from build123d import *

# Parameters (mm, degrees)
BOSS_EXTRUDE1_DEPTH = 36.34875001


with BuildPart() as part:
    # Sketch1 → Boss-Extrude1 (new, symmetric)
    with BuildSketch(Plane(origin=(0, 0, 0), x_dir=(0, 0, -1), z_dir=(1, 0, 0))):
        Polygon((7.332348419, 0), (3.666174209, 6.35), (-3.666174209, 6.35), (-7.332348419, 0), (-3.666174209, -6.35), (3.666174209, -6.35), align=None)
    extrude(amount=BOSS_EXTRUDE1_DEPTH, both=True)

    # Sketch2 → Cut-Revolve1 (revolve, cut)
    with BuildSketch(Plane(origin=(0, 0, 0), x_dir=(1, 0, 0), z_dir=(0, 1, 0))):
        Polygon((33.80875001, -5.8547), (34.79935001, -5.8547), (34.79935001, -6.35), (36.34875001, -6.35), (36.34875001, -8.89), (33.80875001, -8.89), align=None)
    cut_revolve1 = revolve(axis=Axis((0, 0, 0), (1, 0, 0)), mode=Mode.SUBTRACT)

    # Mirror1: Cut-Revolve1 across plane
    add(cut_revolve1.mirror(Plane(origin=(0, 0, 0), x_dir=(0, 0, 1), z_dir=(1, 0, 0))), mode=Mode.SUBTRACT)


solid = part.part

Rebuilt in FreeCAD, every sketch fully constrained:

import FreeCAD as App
import Part
import Sketcher

V = App.Vector
Q = App.Units.Quantity

doc = App.newDocument("Part")
params = doc.addObject("Spreadsheet::Sheet", "Params")
for row, (alias, value) in enumerate([
    ("pad1_length", "72.6975 mm"),
    ("sketch2_width", "0.1 in"),
    ("sketch2_width2", "0.039 in"),
    ("groove_angle", "360 deg"),
], start=1):
    params.set(f"A{row}", alias)
    params.set(f"B{row}", "=" + value)
    params.setAlias(f"B{row}", alias)

body = doc.addObject("PartDesign::Body", "Body")

# Sketch on YZ plane
sketch1 = body.newObject("Sketcher::SketchObject", "Sketch")
sketch1.AttachmentSupport = (doc.getObject("YZ_Plane"), [""])
sketch1.MapMode = "FlatFace"
sketch1.addGeometry(Part.LineSegment(V(0, -7, 0), V(6, -4, 0)), False)
sketch1.addGeometry(Part.LineSegment(V(6, -4, 0), V(6, 4, 0)), False)
sketch1.addGeometry(Part.LineSegment(V(6, 4, 0), V(0, 7, 0)), False)
sketch1.addGeometry(Part.LineSegment(V(0, 7, 0), V(-6, 4, 0)), False)
sketch1.addGeometry(Part.LineSegment(V(-6, 4, 0), V(-6, -4, 0)), False)
sketch1.addGeometry(Part.LineSegment(V(-6, -4, 0), V(0, -7, 0)), False)
sketch1.addConstraint(Sketcher.Constraint("Coincident", 0, 2, 1, 1))
sketch1.addConstraint(Sketcher.Constraint("Coincident", 1, 2, 2, 1))
sketch1.addConstraint(Sketcher.Constraint("Coincident", 2, 2, 3, 1))
sketch1.addConstraint(Sketcher.Constraint("Coincident", 3, 2, 4, 1))
sketch1.addConstraint(Sketcher.Constraint("Coincident", 4, 2, 5, 1))
sketch1.addConstraint(Sketcher.Constraint("Coincident", 5, 2, 0, 1))
sketch1.addConstraint(Sketcher.Constraint("Vertical", 1))
sketch1.addConstraint(Sketcher.Constraint("Vertical", 4))
sketch1.addConstraint(Sketcher.Constraint("Symmetric", 0, 2, 3, 2, -1, 1))
sketch1.addConstraint(Sketcher.Constraint("Symmetric", 2, 2, 5, 2, -1, 1))
sketch1.addConstraint(Sketcher.Constraint("PointOnObject", 2, 2, -2))
sketch1.addConstraint(Sketcher.Constraint("Parallel", 2, 5))
sketch1.addConstraint(Sketcher.Constraint("Horizontal", 1, 2, 3, 2))
sketch1.addConstraint(Sketcher.Constraint("Angle", 0, Q("30 deg")))
sketch1.addConstraint(Sketcher.Constraint("DistanceX", 3, 2, 1, 2, Q("0.5 in")))
sketch1.addConstraint(Sketcher.Constraint("DistanceY", 1, 1, 1, 2, 7.332348))
pad1 = body.newObject("PartDesign::Pad", "Pad")
pad1.Profile = sketch1
pad1.setExpression("Length", "Params.pad1_length")
pad1.Midplane = True

# Sketch on XZ plane
sketch2 = body.newObject("Sketcher::SketchObject", "Sketch001")
sketch2.AttachmentSupport = (doc.getObject("XZ_Plane"), [""])
sketch2.MapMode = "FlatFace"
sketch2.addGeometry(Part.LineSegment(V(34.8, 5.85, 0), V(33.81, 5.85, 0)), False)
sketch2.addGeometry(Part.LineSegment(V(33.81, 5.85, 0), V(33.81, 8.89, 0)), False)
sketch2.addGeometry(Part.LineSegment(V(33.81, 8.89, 0), V(36.35, 8.89, 0)), False)
sketch2.addGeometry(Part.LineSegment(V(36.35, 8.89, 0), V(36.35, 6.35, 0)), False)
sketch2.addGeometry(Part.LineSegment(V(36.35, 6.35, 0), V(34.8, 6.35, 0)), False)
sketch2.addGeometry(Part.LineSegment(V(34.8, 6.35, 0), V(34.8, 5.85, 0)), False)
sketch2.addConstraint(Sketcher.Constraint("Coincident", 0, 2, 1, 1))
sketch2.addConstraint(Sketcher.Constraint("Coincident", 1, 2, 2, 1))
sketch2.addConstraint(Sketcher.Constraint("Coincident", 2, 2, 3, 1))
sketch2.addConstraint(Sketcher.Constraint("Coincident", 3, 2, 4, 1))
sketch2.addConstraint(Sketcher.Constraint("Coincident", 4, 2, 5, 1))
sketch2.addConstraint(Sketcher.Constraint("Coincident", 5, 2, 0, 1))
sketch2.addConstraint(Sketcher.Constraint("Horizontal", 0))
sketch2.addConstraint(Sketcher.Constraint("Vertical", 1))
sketch2.addConstraint(Sketcher.Constraint("Horizontal", 2))
sketch2.addConstraint(Sketcher.Constraint("Vertical", 3))
sketch2.addConstraint(Sketcher.Constraint("Horizontal", 4))
sketch2.addConstraint(Sketcher.Constraint("Vertical", 5))
sketch2.addConstraint(Sketcher.Constraint("Equal", 2, 3))
sketch2.addConstraint(Sketcher.Constraint("DistanceX", 2, 1, 2, 2, Q("0.1 in")))
sketch2.addConstraint(Sketcher.Constraint("DistanceX", 0, 2, 0, 1, Q("0.039 in")))
sketch2.addConstraint(Sketcher.Constraint("DistanceY", -1, 1, 1, 2, Q("0.35 in")))
sketch2.addConstraint(Sketcher.Constraint("DistanceY", 1, 1, 1, 2, Q("0.1195 in")))
sketch2.addConstraint(Sketcher.Constraint("DistanceX", -1, 1, 0, 2, 33.80875))
sketch2.setExpression("Constraints[13]", "Params.sketch2_width")
sketch2.setExpression("Constraints[14]", "Params.sketch2_width2")
groove = body.newObject("PartDesign::Groove", "Groove")
groove.Profile = sketch2
groove.ReferenceAxis = (sketch2, ["H_Axis"])
groove.setExpression("Angle", "Params.groove_angle")
doc.recompute()

mirrored = body.newObject("PartDesign::Mirrored", "Mirrored")
mirrored.Originals = [groove]
mirrored.MirrorPlane = (doc.getObject("YZ_Plane"), [""])
body.Tip = mirrored

doc.recompute()
